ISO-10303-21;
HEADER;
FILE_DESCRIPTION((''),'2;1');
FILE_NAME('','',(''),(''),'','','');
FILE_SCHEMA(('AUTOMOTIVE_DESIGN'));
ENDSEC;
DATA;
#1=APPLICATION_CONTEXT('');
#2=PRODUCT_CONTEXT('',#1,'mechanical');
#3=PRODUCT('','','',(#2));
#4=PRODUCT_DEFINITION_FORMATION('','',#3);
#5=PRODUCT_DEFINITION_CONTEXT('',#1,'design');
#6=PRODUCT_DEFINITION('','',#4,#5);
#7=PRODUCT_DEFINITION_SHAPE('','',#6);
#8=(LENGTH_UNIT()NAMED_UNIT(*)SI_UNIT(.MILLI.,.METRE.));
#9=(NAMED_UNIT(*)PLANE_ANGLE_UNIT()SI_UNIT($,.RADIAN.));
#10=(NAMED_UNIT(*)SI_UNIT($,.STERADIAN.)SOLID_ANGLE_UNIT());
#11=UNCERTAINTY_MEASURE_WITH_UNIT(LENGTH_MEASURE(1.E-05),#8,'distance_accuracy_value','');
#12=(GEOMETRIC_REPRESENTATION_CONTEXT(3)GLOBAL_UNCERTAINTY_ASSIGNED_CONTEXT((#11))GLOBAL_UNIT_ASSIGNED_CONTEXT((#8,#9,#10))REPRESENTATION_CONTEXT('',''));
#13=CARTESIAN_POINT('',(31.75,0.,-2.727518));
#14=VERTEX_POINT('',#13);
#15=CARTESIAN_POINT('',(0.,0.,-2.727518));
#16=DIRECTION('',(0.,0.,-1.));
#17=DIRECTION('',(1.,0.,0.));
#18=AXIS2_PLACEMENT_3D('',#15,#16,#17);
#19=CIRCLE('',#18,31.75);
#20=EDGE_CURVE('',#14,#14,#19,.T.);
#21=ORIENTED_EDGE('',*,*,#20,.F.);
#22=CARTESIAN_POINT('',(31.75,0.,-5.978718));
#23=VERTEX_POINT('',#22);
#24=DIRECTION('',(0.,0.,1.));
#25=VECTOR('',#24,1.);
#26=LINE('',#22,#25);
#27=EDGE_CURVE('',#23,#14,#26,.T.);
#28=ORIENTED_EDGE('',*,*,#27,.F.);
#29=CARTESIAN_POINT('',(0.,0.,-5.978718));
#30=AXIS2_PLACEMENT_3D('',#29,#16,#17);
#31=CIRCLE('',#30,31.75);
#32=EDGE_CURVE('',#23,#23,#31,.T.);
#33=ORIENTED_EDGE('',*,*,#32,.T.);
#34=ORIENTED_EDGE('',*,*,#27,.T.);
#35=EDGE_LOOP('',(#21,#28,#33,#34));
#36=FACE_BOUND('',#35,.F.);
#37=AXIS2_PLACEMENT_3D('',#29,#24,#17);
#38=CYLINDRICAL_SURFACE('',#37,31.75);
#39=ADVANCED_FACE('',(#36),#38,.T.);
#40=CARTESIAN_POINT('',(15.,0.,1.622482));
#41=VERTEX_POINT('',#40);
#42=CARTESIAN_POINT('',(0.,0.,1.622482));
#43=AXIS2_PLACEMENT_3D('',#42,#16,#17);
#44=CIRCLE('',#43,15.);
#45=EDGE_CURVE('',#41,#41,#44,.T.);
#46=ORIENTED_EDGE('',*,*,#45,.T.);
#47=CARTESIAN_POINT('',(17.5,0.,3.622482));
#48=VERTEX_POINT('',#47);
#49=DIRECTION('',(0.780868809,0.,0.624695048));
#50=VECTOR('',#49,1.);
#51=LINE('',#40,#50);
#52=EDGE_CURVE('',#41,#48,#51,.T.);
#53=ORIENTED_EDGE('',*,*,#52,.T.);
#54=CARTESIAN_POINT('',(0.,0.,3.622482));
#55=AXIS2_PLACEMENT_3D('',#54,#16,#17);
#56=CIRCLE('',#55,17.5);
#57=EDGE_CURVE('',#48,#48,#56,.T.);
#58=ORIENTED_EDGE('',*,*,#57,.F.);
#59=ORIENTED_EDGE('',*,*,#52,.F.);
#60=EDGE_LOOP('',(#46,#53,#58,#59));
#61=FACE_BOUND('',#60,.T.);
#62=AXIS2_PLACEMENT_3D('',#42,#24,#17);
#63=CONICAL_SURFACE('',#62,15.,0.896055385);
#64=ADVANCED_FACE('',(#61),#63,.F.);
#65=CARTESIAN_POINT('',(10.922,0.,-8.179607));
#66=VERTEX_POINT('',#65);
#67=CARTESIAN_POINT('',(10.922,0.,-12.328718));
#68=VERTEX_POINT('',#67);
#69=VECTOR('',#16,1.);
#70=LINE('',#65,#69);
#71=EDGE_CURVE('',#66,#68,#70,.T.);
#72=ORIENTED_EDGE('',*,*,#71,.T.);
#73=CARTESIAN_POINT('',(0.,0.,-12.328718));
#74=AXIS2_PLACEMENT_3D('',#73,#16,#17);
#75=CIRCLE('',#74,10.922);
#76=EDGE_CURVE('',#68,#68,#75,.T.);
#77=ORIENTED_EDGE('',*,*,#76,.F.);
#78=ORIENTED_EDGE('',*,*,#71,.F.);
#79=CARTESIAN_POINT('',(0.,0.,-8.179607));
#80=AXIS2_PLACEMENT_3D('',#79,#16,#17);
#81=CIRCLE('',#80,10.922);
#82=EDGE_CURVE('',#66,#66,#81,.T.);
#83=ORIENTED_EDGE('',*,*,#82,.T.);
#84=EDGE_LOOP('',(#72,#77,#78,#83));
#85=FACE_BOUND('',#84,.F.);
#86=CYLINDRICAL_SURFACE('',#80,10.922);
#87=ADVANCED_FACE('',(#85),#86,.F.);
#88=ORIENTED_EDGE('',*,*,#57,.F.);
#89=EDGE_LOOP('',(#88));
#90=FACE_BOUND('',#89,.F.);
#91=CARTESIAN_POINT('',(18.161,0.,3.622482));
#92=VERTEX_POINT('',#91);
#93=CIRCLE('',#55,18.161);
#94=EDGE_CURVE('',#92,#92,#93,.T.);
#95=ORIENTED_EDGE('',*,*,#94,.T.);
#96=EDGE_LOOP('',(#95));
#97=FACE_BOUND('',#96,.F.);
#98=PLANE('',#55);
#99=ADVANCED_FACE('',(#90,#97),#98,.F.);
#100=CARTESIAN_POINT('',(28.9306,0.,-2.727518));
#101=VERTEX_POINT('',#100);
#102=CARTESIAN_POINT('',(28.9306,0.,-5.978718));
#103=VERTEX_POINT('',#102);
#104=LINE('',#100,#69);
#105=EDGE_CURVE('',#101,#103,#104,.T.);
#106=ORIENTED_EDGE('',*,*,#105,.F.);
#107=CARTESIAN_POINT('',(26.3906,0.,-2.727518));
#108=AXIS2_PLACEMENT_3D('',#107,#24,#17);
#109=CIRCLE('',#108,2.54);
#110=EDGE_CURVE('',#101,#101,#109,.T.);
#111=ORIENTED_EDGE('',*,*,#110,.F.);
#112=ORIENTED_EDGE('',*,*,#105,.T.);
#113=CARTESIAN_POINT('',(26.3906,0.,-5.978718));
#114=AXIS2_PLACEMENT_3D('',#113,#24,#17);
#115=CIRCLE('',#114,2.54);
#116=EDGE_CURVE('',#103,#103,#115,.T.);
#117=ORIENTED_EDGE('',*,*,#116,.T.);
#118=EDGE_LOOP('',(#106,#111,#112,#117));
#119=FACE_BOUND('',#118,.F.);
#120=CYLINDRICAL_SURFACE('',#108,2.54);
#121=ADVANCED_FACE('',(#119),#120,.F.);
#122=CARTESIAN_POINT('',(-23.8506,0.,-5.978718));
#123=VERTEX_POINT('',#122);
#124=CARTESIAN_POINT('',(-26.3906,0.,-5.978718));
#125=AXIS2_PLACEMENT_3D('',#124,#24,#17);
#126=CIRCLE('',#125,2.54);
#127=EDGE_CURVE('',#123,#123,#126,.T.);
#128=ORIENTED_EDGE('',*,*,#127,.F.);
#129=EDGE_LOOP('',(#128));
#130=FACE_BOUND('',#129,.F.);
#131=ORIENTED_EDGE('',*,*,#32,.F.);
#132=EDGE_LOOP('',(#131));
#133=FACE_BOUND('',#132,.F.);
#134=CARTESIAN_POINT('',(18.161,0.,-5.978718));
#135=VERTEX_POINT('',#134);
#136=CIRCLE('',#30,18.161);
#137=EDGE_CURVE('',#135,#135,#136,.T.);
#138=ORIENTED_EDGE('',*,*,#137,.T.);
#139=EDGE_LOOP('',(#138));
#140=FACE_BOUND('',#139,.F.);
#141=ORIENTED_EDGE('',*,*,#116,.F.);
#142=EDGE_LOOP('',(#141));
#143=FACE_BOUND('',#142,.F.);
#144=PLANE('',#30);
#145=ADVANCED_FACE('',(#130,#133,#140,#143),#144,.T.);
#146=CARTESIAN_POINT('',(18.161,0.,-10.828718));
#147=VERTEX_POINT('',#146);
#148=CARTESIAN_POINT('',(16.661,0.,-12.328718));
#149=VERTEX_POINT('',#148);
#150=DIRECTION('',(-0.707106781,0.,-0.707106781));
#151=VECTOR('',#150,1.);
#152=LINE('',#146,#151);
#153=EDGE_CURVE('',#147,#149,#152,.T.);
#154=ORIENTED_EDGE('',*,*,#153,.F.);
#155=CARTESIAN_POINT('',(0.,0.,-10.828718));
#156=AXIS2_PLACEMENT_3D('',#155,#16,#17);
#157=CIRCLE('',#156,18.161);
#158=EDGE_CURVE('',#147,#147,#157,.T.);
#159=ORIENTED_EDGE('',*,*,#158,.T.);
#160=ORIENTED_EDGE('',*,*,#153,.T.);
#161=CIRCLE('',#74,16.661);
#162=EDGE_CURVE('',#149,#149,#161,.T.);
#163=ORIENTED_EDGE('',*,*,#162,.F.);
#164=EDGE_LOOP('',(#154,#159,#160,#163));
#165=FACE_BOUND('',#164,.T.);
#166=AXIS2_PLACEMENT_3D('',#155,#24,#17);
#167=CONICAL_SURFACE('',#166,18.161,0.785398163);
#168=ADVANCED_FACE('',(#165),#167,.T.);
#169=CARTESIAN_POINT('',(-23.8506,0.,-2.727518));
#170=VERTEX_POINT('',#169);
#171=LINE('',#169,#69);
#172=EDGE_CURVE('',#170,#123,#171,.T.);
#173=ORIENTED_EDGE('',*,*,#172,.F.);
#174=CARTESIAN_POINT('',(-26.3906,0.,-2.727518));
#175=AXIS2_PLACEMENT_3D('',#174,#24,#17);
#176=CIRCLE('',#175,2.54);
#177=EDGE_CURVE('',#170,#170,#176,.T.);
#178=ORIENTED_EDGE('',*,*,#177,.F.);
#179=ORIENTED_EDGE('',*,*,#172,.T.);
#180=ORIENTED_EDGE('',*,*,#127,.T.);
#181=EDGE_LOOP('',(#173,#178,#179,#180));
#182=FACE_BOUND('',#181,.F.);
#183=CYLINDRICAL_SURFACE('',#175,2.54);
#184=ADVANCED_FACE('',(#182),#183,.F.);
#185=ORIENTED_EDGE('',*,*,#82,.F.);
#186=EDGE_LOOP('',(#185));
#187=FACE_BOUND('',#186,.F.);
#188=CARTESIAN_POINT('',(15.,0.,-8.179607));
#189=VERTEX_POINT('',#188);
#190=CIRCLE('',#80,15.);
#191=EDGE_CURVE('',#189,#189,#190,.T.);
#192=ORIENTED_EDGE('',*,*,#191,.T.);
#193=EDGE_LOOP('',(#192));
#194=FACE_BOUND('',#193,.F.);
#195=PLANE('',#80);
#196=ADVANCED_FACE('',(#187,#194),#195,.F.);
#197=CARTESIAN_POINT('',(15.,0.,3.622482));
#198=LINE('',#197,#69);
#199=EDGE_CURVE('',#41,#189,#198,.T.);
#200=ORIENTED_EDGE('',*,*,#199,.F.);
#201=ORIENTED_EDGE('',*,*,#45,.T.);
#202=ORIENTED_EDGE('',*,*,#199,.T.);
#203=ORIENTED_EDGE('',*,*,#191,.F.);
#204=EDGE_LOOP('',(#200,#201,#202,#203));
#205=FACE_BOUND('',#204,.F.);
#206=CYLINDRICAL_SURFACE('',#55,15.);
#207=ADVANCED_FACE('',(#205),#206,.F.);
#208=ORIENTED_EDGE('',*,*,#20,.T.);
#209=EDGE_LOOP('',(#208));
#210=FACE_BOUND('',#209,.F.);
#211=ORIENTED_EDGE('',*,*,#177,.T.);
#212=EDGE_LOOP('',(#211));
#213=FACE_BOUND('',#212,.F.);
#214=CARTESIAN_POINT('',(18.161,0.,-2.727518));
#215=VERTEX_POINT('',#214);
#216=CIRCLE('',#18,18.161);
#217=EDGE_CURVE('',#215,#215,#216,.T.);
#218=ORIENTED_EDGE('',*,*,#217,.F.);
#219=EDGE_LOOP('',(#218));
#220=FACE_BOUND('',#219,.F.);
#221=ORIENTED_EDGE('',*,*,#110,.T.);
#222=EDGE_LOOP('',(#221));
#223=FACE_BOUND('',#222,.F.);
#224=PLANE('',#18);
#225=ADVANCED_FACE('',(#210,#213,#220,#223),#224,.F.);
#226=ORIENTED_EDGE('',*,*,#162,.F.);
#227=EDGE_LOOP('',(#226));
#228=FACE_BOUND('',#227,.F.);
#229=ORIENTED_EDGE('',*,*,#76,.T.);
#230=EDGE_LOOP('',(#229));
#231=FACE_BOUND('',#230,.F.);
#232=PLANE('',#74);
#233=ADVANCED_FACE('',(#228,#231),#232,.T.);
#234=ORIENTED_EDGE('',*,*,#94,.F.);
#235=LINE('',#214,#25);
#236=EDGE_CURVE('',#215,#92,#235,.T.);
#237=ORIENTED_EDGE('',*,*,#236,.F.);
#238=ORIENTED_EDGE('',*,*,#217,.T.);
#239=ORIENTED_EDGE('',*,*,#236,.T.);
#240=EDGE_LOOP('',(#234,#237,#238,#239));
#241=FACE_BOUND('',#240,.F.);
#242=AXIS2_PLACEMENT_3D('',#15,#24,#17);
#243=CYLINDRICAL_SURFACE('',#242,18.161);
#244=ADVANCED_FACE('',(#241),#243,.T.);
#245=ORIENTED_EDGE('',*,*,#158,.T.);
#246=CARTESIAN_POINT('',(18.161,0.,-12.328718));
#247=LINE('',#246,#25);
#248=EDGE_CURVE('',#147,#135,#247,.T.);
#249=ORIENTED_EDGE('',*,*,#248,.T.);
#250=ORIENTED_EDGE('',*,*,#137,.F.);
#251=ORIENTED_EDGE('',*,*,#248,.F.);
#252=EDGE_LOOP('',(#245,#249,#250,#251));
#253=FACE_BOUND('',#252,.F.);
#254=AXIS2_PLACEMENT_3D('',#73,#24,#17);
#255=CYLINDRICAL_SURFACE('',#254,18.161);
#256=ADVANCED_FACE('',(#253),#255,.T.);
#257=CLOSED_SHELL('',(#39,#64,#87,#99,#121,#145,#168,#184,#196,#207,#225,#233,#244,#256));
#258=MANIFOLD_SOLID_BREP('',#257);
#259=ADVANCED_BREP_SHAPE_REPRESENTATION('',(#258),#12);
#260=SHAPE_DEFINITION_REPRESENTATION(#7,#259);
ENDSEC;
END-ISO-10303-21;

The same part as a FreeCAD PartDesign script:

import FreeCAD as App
import Part
import Sketcher

V = App.Vector
Q = App.Units.Quantity


def edges_at(feature, points):
    """Names of the edges that pass closest to the given points."""
    edges = feature.Shape.Edges
    near = lambda p: min(range(len(edges)), key=lambda i: edges[i].distToShape(Part.Vertex(*p))[0])
    return sorted({f"Edge{near(p) + 1}" for p in points})


def add_polygon(sketch, points):
    """Adds a closed chain of lines whose ends are joined by coincident constraints."""
    first, n = sketch.GeometryCount, len(points)
    for a, b in zip(points, points[1:] + points[:1]):
        sketch.addGeometry(Part.LineSegment(App.Vector(*a, 0), App.Vector(*b, 0)), False)
    for i in range(n):
        sketch.addConstraint(Sketcher.Constraint("Coincident", first + i, 2, first + (i + 1) % n, 1))

doc = App.newDocument("Part")
body = doc.addObject("PartDesign::Body", "Body")

# Sketch on XZ plane
sketch1 = body.newObject("Sketcher::SketchObject", "Sketch")
sketch1.AttachmentSupport = (doc.getObject("XZ_Plane"), [""])
sketch1.MapMode = "FlatFace"
add_polygon(sketch1, [(31.75, -5.978718), (31.75, -2.727518), (18.161, -2.727518), (18.161, 3.622482), (15, 3.622482), (15, -8.179607), (10.922, -8.179607), (10.922, -12.328718), (18.161, -12.328718), (18.161, -5.978718)])  # lines 0-9
sketch1.addConstraint([
    Sketcher.Constraint("Vertical", 0),
    Sketcher.Constraint("Horizontal", 1),
    Sketcher.Constraint("Vertical", 2),
    Sketcher.Constraint("Horizontal", 3),
    Sketcher.Constraint("Vertical", 4),
    Sketcher.Constraint("Horizontal", 5),
    Sketcher.Constraint("Vertical", 6),
    Sketcher.Constraint("Horizontal", 7),
    Sketcher.Constraint("Vertical", 8),
    Sketcher.Constraint("Horizontal", 9),
    Sketcher.Constraint("Vertical", 2, 2, 7, 2),
    Sketcher.Constraint("Equal", 2, 8),
    Sketcher.Constraint("DistanceY", 2, 1, 2, 2, Q("0.25 in")),
    Sketcher.Constraint("DistanceX", 1, 2, 1, 1, Q("0.535 in")),
    Sketcher.Constraint("DistanceX", 7, 1, 7, 2, Q("0.285 in")),
    Sketcher.Constraint("DistanceY", 0, 1, 0, 2, Q("0.128 in")),
    Sketcher.Constraint("DistanceX", -1, 1, 0, 2, Q("1.25 in")),
    Sketcher.Constraint("DistanceX", 3, 2, 3, 1, Q("3.161 mm")),
    Sketcher.Constraint("DistanceY", 4, 2, 4, 1, Q("11.802089 mm")),
    Sketcher.Constraint("DistanceY", 0, 2, -1, 1, Q("2.727518 mm")),
])
revolution = body.newObject("PartDesign::Revolution", "Revolution")
revolution.Profile = sketch1
revolution.ReferenceAxis = (sketch1, ["V_Axis"])
revolution.Angle = 360

# Sketch on XY plane
sketch2 = body.newObject("Sketcher::SketchObject", "Sketch001")
sketch2.AttachmentSupport = (doc.getObject("XY_Plane"), [""])
sketch2.MapMode = "FlatFace"
sketch2.AttachmentOffset = App.Placement(V(0, 0, -2.727518), App.Rotation())
sketch2.addGeometry([
    Part.Circle(V(26.3906, 0, 0), V(0, 0, 1), 2.54),
    Part.Circle(V(-26.3906, 0, 0), V(0, 0, 1), 2.54),
], False)
sketch2.addConstraint([
    Sketcher.Constraint("Equal", 0, 1),
    Sketcher.Constraint("Symmetric", 0, 3, 1, 3, -1, 1),
    Sketcher.Constraint("PointOnObject", 0, 3, -1),
    Sketcher.Constraint("Diameter", 0, Q("0.2 in")),
    Sketcher.Constraint("DistanceX", -1, 1, 0, 3, Q("1.039 in")),
])
pocket1 = body.newObject("PartDesign::Pocket", "Pocket")
pocket1.Profile = sketch2
pocket1.Type = "ThroughAll"
doc.recompute()

chamfer = body.newObject("PartDesign::Chamfer", "Chamfer")
chamfer.Base = (pocket1, edges_at(pocket1, [(-18.161, 0, -12.329)]))
chamfer.Size = 1.5
doc.recompute()

chamfer2 = body.newObject("PartDesign::Chamfer", "Chamfer001")
chamfer2.Base = (chamfer, edges_at(chamfer, [(-15, 0, 3.622)]))
chamfer2.ChamferType = "Two distances"
chamfer2.Size = 2
chamfer2.Size2 = 2.5

doc.recompute()
